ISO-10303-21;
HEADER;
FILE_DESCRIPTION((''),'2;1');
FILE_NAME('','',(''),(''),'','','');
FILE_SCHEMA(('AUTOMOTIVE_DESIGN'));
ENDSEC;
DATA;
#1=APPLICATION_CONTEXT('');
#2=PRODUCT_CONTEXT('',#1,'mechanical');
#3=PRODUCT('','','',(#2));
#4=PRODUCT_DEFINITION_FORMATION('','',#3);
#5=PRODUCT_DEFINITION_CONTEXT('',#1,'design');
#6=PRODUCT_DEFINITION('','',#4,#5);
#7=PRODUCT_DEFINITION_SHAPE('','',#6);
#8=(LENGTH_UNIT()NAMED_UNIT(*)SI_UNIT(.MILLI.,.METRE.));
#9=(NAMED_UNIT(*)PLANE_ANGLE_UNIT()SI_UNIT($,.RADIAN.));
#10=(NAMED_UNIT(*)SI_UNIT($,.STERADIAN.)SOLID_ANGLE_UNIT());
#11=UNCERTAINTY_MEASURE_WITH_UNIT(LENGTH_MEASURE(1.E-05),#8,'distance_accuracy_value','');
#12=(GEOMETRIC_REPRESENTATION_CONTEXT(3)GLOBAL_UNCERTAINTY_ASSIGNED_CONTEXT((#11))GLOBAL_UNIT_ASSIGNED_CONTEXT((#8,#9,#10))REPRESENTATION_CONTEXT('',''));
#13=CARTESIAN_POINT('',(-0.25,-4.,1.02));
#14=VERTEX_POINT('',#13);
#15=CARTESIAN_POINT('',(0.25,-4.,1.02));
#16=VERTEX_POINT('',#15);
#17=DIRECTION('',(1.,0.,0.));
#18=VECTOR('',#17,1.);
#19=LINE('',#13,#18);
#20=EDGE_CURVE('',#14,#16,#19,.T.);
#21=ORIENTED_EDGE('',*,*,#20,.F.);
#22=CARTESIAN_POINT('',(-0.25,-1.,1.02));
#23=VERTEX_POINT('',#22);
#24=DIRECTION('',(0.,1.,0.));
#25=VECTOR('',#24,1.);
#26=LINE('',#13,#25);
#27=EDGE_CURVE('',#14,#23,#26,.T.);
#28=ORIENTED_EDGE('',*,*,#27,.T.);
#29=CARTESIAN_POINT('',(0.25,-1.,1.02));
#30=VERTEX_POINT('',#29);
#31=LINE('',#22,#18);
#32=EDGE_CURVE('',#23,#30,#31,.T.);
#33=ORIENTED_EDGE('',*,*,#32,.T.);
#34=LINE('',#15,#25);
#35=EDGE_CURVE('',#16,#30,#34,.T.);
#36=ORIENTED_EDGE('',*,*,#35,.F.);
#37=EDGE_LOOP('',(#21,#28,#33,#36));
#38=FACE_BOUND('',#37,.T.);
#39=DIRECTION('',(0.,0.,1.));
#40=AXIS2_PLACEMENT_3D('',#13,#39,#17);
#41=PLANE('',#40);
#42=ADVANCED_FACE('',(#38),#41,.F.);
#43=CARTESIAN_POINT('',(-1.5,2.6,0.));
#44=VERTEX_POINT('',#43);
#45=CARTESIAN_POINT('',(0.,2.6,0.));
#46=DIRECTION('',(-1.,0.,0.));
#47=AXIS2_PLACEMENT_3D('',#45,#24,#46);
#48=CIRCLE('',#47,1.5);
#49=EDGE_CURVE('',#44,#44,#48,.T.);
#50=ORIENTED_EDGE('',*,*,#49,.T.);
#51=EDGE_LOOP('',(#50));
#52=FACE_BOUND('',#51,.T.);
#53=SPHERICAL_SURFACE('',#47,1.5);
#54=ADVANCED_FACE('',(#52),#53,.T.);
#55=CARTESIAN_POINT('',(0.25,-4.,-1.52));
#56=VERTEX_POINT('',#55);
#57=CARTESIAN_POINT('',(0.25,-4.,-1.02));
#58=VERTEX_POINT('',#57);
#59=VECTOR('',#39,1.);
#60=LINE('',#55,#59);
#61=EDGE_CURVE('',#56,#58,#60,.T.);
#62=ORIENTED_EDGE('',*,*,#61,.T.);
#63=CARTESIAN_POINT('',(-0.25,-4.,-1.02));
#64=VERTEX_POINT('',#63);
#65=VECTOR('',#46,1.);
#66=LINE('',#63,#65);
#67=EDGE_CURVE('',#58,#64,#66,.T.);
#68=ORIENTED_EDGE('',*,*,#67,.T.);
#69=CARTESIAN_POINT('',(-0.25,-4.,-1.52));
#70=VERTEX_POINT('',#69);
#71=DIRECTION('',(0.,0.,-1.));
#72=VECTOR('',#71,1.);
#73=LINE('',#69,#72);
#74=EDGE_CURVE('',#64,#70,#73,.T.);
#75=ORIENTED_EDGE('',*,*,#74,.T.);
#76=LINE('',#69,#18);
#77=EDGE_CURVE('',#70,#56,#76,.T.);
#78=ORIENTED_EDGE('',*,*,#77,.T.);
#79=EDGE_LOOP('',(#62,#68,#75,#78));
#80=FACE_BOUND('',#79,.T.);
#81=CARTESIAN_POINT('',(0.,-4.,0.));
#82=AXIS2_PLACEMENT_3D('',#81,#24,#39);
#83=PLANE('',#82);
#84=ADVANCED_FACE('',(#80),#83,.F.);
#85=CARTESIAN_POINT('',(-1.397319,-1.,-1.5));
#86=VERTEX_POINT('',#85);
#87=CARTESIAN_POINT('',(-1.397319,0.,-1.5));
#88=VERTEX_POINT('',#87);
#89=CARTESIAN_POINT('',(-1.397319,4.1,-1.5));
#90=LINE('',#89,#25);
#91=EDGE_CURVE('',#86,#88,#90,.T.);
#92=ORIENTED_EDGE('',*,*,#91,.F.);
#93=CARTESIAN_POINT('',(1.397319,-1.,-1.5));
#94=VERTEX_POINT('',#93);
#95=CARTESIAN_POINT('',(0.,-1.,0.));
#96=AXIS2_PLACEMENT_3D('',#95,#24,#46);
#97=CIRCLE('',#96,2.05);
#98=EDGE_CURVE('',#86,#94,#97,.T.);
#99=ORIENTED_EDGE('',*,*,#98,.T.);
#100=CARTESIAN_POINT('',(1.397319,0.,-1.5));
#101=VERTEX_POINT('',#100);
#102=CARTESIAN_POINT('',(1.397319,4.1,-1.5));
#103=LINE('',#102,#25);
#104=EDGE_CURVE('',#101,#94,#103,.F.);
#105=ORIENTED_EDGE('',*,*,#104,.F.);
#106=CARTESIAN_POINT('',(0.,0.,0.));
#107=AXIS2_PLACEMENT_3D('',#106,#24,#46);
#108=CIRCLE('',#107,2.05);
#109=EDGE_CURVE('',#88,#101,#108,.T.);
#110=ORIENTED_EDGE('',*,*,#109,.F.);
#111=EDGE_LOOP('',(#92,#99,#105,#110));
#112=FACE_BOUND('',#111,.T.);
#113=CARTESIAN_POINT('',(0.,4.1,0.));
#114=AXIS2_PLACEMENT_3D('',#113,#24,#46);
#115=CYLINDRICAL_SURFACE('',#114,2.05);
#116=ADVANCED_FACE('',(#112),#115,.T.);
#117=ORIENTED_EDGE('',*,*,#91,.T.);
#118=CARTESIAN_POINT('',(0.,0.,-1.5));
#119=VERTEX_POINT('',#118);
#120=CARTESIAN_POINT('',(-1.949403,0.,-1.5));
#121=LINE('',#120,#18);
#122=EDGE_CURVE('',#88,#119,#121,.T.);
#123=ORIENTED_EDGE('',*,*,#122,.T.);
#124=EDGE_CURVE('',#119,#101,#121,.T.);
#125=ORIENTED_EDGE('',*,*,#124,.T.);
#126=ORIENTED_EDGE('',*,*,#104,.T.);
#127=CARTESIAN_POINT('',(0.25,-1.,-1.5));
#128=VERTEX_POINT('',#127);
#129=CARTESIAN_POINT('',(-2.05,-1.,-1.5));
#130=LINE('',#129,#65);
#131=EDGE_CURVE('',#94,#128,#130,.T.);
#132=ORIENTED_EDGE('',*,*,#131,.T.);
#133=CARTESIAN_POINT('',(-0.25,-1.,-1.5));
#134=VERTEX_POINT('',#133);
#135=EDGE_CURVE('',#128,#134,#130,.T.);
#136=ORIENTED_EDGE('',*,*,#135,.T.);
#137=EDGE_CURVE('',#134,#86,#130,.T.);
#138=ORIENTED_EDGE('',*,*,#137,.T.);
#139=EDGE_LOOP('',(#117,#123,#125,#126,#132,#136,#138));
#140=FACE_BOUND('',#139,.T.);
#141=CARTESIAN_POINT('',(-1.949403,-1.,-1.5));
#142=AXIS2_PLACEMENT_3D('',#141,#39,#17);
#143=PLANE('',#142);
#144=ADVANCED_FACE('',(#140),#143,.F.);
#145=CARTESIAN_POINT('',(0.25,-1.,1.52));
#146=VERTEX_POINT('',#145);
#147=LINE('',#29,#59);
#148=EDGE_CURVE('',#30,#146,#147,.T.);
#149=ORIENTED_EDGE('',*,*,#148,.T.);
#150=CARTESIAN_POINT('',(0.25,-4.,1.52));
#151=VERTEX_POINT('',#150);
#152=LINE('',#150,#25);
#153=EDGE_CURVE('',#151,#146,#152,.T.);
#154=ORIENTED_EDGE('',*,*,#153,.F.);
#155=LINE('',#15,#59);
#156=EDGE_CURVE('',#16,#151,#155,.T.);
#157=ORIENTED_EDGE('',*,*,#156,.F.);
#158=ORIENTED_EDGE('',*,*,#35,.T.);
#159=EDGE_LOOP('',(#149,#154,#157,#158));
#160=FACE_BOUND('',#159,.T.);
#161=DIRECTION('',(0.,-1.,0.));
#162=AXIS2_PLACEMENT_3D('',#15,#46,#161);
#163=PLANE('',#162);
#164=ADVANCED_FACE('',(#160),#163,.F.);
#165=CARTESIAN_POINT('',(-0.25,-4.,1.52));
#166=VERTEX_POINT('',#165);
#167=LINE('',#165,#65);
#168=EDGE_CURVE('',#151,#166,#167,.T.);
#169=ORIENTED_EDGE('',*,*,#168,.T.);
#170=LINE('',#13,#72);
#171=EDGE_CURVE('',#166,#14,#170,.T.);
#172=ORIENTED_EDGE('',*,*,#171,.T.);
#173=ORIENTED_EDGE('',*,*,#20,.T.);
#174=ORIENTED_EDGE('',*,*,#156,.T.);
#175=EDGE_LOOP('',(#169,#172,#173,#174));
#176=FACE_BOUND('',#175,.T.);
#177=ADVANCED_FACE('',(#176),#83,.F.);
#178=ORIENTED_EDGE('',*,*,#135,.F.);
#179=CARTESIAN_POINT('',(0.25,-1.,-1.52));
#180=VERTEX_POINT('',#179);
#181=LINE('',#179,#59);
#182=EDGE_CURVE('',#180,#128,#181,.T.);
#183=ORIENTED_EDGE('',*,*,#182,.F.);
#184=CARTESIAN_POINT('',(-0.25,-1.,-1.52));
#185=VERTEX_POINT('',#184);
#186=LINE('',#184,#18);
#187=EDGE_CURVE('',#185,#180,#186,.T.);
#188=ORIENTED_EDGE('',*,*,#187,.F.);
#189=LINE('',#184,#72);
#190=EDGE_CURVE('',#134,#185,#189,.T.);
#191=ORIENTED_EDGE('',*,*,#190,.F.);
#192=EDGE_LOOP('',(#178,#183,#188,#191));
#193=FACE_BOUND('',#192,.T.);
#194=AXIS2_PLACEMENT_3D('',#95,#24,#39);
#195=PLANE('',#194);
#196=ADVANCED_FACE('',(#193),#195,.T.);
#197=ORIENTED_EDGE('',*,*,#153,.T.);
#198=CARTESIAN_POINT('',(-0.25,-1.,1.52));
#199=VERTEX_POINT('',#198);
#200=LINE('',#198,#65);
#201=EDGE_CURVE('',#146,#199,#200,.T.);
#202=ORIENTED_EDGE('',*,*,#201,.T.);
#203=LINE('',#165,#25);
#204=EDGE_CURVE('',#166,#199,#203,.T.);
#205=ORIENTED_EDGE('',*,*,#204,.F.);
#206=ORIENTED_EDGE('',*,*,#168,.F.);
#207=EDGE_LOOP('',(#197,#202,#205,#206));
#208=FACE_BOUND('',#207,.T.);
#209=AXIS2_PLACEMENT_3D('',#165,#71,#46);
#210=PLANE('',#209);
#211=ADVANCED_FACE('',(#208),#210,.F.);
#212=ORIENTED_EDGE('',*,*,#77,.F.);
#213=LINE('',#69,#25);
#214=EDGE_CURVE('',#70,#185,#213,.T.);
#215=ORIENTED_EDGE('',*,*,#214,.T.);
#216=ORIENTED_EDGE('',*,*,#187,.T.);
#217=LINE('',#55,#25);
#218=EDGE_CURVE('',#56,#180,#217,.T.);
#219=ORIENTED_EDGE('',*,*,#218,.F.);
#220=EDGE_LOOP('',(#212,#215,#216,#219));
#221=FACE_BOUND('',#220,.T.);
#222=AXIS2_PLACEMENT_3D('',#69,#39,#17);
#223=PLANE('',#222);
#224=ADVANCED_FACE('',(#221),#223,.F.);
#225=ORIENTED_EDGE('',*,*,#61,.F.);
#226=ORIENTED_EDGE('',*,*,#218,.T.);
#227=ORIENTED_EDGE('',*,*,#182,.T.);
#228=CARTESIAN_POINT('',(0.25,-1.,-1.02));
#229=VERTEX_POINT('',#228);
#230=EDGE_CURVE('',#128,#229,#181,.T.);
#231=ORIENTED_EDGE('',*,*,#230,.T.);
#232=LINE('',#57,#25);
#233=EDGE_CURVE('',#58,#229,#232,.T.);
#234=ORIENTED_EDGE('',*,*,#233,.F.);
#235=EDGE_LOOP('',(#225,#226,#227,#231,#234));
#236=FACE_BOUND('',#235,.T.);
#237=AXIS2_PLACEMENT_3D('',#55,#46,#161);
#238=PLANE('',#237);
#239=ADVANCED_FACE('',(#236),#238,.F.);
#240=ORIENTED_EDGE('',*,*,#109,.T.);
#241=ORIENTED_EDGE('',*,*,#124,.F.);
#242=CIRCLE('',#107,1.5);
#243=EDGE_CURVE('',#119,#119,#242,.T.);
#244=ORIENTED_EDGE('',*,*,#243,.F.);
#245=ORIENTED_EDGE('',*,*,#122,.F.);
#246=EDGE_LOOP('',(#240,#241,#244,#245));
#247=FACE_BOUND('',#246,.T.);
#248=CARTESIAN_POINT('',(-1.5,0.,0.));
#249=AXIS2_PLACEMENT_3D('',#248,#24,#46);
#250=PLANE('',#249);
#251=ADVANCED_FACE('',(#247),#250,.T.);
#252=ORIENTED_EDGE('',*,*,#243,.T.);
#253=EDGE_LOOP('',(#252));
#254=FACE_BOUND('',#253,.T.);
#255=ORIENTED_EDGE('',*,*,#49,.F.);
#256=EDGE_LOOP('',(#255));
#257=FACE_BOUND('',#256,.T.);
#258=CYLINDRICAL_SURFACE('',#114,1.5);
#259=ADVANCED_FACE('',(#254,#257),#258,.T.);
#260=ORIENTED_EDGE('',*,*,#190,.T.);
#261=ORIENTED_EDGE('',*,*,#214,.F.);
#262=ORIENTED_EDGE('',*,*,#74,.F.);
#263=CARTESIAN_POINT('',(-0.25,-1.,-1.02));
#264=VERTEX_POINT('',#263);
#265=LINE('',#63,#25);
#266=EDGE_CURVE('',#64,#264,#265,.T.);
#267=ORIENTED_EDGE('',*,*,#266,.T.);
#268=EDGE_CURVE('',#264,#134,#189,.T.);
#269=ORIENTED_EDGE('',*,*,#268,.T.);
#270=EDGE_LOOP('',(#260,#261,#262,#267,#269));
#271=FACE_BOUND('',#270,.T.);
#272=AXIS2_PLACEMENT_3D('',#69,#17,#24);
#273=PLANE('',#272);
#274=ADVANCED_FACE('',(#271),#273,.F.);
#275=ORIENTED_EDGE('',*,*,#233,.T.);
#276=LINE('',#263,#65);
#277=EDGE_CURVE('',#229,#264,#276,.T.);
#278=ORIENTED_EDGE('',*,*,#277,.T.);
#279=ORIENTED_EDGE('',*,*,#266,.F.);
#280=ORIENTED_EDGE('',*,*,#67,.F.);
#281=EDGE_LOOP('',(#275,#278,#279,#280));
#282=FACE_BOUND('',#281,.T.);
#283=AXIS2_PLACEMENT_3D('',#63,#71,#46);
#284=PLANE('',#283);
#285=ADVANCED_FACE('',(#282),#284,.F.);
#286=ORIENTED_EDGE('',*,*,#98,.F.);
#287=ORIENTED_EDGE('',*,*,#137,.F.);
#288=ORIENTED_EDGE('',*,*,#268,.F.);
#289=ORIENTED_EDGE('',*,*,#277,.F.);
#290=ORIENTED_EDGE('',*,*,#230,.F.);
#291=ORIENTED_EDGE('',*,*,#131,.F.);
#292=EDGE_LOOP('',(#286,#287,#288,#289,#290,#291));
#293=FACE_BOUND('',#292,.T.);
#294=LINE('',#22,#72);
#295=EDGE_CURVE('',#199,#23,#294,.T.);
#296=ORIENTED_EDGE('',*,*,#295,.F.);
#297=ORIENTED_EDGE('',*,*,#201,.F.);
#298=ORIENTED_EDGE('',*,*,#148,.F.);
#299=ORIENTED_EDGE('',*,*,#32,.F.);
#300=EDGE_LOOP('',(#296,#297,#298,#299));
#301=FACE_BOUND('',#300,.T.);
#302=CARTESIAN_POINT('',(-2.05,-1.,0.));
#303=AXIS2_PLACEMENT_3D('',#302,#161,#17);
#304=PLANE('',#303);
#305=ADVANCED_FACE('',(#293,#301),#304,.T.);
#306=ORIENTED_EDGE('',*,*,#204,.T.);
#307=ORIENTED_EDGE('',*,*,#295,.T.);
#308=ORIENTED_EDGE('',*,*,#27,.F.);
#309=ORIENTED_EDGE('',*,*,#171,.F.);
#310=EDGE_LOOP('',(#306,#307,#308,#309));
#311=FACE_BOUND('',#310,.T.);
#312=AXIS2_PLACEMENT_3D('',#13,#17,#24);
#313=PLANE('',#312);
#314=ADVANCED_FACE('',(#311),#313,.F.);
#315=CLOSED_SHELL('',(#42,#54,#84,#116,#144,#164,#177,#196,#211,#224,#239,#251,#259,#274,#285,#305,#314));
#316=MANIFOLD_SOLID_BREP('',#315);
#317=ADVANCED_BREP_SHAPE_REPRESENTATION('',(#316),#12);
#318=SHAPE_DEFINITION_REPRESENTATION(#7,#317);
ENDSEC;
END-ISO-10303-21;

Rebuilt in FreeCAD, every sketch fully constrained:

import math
import FreeCAD as App
import Part
import Sketcher

doc = App.newDocument("Part")
body = doc.addObject("PartDesign::Body", "Body")

# Sketch on XY plane
sketch1 = body.newObject("Sketcher::SketchObject", "Sketch")
sketch1.AttachmentSupport = (doc.getObject("XY_Plane"), [""])
sketch1.MapMode = "FlatFace"
sketch1.addGeometry([
    Part.LineSegment(App.Vector(-1.5, 2.6, 0), App.Vector(-1.5, 0, 0)),  # 0
    Part.LineSegment(App.Vector(-1.5, 0, 0), App.Vector(-2, 0, 0)),  # 1
    Part.LineSegment(App.Vector(-2, 0, 0), App.Vector(-2, -1, 0)),  # 2
    Part.LineSegment(App.Vector(-2, -1, 0), App.Vector(0, -1, 0)),  # 3
    Part.LineSegment(App.Vector(0, -1, 0), App.Vector(0, 4.1, 0)),  # 4
    Part.ArcOfCircle(Part.Circle(App.Vector(0, 2.6, 0), App.Vector(0, 0, 1), 1.5), math.radians(90), math.radians(180)),  # 5
], False)
sketch1.addConstraint([
    Sketcher.Constraint("Coincident", 0, 2, 1, 1),
    Sketcher.Constraint("Coincident", 1, 2, 2, 1),
    Sketcher.Constraint("Coincident", 2, 2, 3, 1),
    Sketcher.Constraint("Coincident", 3, 2, 4, 1),
    Sketcher.Constraint("Coincident", 4, 2, 5, 1),
    Sketcher.Constraint("Tangent", 5, 2, 0, 1),
    Sketcher.Constraint("Vertical", 0),
    Sketcher.Constraint("Horizontal", 1),
    Sketcher.Constraint("Vertical", 2),
    Sketcher.Constraint("Horizontal", 3),
    Sketcher.Constraint("Vertical", 4),
    Sketcher.Constraint("PointOnObject", 5, 3, -2),
    Sketcher.Constraint("PointOnObject", 0, 2, -1),
    Sketcher.Constraint("PointOnObject", 3, 2, -2),
    Sketcher.Constraint("Radius", 5, 1.5),
    Sketcher.Constraint("DistanceY", 2, 2, 2, 1, 1.0),
    Sketcher.Constraint("DistanceY", 0, 2, 0, 1, 2.6),
    Sketcher.Constraint("DistanceX", 1, 2, 1, 1, 0.55),
])
revolution = body.newObject("PartDesign::Revolution", "Revolution")
revolution.Profile = sketch1
revolution.ReferenceAxis = (sketch1, ["V_Axis"])
revolution.Angle = 360

# Sketch on XZ plane
sketch2 = body.newObject("Sketcher::SketchObject", "Sketch001")
sketch2.AttachmentSupport = (doc.getObject("XZ_Plane"), [""])
sketch2.MapMode = "FlatFace"
sketch2.addGeometry([
    Part.LineSegment(App.Vector(-1.9, -1.5, 0), App.Vector(2.1, -1.5, 0)),
    Part.LineSegment(App.Vector(2.1, -1.5, 0), App.Vector(0.5, -3.4, 0)),
    Part.LineSegment(App.Vector(0.5, -3.4, 0), App.Vector(-1.9, -1.5, 0)),
], False)
sketch2.addConstraint([
    Sketcher.Constraint("Coincident", 0, 2, 1, 1),
    Sketcher.Constraint("Coincident", 1, 2, 2, 1),
    Sketcher.Constraint("Coincident", 2, 2, 0, 1),
    Sketcher.Constraint("Horizontal", 0),
    Sketcher.Constraint("DistanceY", 0, 2, -1, 1, 1.5),
    Sketcher.Constraint("DistanceX", 0, 1, 0, 2, 4.046798),
    Sketcher.Constraint("DistanceY", 1, 2, -1, 1, 3.403801),
    Sketcher.Constraint("Distance", 2, 3.10638),
    Sketcher.Constraint("DistanceX", -1, 1, 1, 2, 0.505212),
])
pocket1 = body.newObject("PartDesign::Pocket", "Pocket")
pocket1.Profile = sketch2
pocket1.Type = "ThroughAll"
pocket1.Reversed = True

# Sketch on XZ plane
sketch3 = body.newObject("Sketcher::SketchObject", "Sketch002")
sketch3.AttachmentSupport = (doc.getObject("XZ_Plane"), [""])
sketch3.MapMode = "FlatFace"
sketch3.AttachmentOffset = App.Placement(App.Vector(0, 0, 1), App.Rotation())
sketch3.addGeometry([
    Part.LineSegment(App.Vector(-0.2, 1.5, 0), App.Vector(-0.2, 1, 0)),  # 0
    Part.LineSegment(App.Vector(-0.2, 1, 0), App.Vector(0.2, 1, 0)),  # 1
    Part.LineSegment(App.Vector(0.2, 1, 0), App.Vector(0.2, 1.5, 0)),  # 2
    Part.LineSegment(App.Vector(0.2, 1.5, 0), App.Vector(-0.2, 1.5, 0)),  # 3
    Part.LineSegment(App.Vector(-0.2, -1, 0), App.Vector(-0.2, -1.5, 0)),  # 4
    Part.LineSegment(App.Vector(-0.2, -1.5, 0), App.Vector(0.2, -1.5, 0)),  # 5
    Part.LineSegment(App.Vector(0.2, -1.5, 0), App.Vector(0.2, -1, 0)),  # 6
    Part.LineSegment(App.Vector(0.2, -1, 0), App.Vector(-0.2, -1, 0)),  # 7
], False)
sketch3.addConstraint([
    Sketcher.Constraint("Coincident", 0, 2, 1, 1),
    Sketcher.Constraint("Coincident", 1, 2, 2, 1),
    Sketcher.Constraint("Coincident", 2, 2, 3, 1),
    Sketcher.Constraint("Coincident", 3, 2, 0, 1),
    Sketcher.Constraint("Coincident", 4, 2, 5, 1),
    Sketcher.Constraint("Coincident", 5, 2, 6, 1),
    Sketcher.Constraint("Coincident", 6, 2, 7, 1),
    Sketcher.Constraint("Coincident", 7, 2, 4, 1),
    Sketcher.Constraint("Vertical", 0),
    Sketcher.Constraint("Horizontal", 1),
    Sketcher.Constraint("Vertical", 2),
    Sketcher.Constraint("Horizontal", 3),
    Sketcher.Constraint("Vertical", 4),
    Sketcher.Constraint("Horizontal", 5),
    Sketcher.Constraint("Vertical", 6),
    Sketcher.Constraint("Horizontal", 7),
    Sketcher.Constraint("Symmetric", 2, 2, 4, 2, -1, 1),
    Sketcher.Constraint("Symmetric", 0, 2, 6, 2, -1, 1),
    Sketcher.Constraint("Vertical", 3, 2, 4, 2),
    Sketcher.Constraint("Equal", 7, 0),
    Sketcher.Constraint("DistanceX", 1, 1, 1, 2, 0.5),
    Sketcher.Constraint("DistanceY", -1, 1, 0, 2, 1.02),
])
pad1 = body.newObject("PartDesign::Pad", "Pad")
pad1.Profile = sketch3
pad1.Length = 3

doc.recompute()
